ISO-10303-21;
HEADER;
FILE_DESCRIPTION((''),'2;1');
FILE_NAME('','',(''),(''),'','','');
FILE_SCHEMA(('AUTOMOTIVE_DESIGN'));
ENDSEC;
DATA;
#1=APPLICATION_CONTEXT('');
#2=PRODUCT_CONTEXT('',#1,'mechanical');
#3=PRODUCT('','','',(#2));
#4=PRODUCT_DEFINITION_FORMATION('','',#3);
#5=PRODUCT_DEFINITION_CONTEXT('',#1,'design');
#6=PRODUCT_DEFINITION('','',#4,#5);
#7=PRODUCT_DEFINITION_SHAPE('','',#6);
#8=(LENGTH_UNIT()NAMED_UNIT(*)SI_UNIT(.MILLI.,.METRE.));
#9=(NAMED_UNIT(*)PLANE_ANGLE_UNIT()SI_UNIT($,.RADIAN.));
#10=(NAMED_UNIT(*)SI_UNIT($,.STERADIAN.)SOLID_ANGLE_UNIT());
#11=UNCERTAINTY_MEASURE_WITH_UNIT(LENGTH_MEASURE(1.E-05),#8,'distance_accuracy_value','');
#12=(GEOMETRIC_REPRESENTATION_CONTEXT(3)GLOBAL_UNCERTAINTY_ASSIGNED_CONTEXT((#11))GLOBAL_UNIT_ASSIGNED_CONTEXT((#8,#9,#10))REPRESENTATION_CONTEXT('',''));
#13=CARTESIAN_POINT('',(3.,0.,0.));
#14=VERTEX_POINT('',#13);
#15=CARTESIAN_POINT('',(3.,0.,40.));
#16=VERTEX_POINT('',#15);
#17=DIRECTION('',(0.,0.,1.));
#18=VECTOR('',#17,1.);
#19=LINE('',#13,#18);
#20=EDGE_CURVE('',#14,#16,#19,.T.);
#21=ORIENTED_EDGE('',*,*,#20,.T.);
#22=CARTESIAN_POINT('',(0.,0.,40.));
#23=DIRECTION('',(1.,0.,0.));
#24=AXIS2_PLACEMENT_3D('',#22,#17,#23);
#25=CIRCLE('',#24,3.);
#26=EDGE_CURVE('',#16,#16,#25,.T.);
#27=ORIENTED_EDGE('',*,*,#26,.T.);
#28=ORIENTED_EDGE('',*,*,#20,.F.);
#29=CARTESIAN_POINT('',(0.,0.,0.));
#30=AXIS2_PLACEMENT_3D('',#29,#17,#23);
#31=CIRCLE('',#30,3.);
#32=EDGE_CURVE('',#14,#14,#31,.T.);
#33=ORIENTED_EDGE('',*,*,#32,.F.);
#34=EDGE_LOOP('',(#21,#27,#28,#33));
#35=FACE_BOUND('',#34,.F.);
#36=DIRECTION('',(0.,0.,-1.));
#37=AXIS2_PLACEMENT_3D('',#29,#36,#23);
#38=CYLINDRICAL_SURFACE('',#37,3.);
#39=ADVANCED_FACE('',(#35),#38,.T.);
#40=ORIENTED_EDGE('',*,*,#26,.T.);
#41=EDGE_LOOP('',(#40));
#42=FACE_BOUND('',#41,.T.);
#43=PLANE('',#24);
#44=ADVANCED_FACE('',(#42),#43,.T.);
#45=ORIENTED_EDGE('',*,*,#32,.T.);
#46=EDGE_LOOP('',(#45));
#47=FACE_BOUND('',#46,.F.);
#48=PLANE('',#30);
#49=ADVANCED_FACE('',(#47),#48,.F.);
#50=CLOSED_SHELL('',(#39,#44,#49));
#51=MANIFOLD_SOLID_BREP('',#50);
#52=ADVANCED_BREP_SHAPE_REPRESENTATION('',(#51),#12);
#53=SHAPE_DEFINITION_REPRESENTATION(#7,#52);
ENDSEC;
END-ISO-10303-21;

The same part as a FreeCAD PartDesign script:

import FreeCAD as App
import Part
import Sketcher

doc = App.newDocument("Part")
body = doc.addObject("PartDesign::Body", "Body")

# Sketch on XY plane
sketch1 = doc.addObject("Sketcher::SketchObject", "Sketch")
body.addObject(sketch1)
sketch1.AttachmentSupport = (doc.XY_Plane, [""])
sketch1.MapMode = "FlatFace"
sketch1.addGeometry(Part.Circle(App.Vector(0, 0, 0), App.Vector(0, 0, 1), 3), False)
sketch1.addConstraint([
    Sketcher.Constraint("Coincident", 0, 3, -1, 1),
    Sketcher.Constraint("Diameter", 0, 6.0),
])
pad1 = doc.addObject("PartDesign::Pad", "Pad")
body.addObject(pad1)
pad1.Profile = sketch1
pad1.Length = 40

doc.recompute()
